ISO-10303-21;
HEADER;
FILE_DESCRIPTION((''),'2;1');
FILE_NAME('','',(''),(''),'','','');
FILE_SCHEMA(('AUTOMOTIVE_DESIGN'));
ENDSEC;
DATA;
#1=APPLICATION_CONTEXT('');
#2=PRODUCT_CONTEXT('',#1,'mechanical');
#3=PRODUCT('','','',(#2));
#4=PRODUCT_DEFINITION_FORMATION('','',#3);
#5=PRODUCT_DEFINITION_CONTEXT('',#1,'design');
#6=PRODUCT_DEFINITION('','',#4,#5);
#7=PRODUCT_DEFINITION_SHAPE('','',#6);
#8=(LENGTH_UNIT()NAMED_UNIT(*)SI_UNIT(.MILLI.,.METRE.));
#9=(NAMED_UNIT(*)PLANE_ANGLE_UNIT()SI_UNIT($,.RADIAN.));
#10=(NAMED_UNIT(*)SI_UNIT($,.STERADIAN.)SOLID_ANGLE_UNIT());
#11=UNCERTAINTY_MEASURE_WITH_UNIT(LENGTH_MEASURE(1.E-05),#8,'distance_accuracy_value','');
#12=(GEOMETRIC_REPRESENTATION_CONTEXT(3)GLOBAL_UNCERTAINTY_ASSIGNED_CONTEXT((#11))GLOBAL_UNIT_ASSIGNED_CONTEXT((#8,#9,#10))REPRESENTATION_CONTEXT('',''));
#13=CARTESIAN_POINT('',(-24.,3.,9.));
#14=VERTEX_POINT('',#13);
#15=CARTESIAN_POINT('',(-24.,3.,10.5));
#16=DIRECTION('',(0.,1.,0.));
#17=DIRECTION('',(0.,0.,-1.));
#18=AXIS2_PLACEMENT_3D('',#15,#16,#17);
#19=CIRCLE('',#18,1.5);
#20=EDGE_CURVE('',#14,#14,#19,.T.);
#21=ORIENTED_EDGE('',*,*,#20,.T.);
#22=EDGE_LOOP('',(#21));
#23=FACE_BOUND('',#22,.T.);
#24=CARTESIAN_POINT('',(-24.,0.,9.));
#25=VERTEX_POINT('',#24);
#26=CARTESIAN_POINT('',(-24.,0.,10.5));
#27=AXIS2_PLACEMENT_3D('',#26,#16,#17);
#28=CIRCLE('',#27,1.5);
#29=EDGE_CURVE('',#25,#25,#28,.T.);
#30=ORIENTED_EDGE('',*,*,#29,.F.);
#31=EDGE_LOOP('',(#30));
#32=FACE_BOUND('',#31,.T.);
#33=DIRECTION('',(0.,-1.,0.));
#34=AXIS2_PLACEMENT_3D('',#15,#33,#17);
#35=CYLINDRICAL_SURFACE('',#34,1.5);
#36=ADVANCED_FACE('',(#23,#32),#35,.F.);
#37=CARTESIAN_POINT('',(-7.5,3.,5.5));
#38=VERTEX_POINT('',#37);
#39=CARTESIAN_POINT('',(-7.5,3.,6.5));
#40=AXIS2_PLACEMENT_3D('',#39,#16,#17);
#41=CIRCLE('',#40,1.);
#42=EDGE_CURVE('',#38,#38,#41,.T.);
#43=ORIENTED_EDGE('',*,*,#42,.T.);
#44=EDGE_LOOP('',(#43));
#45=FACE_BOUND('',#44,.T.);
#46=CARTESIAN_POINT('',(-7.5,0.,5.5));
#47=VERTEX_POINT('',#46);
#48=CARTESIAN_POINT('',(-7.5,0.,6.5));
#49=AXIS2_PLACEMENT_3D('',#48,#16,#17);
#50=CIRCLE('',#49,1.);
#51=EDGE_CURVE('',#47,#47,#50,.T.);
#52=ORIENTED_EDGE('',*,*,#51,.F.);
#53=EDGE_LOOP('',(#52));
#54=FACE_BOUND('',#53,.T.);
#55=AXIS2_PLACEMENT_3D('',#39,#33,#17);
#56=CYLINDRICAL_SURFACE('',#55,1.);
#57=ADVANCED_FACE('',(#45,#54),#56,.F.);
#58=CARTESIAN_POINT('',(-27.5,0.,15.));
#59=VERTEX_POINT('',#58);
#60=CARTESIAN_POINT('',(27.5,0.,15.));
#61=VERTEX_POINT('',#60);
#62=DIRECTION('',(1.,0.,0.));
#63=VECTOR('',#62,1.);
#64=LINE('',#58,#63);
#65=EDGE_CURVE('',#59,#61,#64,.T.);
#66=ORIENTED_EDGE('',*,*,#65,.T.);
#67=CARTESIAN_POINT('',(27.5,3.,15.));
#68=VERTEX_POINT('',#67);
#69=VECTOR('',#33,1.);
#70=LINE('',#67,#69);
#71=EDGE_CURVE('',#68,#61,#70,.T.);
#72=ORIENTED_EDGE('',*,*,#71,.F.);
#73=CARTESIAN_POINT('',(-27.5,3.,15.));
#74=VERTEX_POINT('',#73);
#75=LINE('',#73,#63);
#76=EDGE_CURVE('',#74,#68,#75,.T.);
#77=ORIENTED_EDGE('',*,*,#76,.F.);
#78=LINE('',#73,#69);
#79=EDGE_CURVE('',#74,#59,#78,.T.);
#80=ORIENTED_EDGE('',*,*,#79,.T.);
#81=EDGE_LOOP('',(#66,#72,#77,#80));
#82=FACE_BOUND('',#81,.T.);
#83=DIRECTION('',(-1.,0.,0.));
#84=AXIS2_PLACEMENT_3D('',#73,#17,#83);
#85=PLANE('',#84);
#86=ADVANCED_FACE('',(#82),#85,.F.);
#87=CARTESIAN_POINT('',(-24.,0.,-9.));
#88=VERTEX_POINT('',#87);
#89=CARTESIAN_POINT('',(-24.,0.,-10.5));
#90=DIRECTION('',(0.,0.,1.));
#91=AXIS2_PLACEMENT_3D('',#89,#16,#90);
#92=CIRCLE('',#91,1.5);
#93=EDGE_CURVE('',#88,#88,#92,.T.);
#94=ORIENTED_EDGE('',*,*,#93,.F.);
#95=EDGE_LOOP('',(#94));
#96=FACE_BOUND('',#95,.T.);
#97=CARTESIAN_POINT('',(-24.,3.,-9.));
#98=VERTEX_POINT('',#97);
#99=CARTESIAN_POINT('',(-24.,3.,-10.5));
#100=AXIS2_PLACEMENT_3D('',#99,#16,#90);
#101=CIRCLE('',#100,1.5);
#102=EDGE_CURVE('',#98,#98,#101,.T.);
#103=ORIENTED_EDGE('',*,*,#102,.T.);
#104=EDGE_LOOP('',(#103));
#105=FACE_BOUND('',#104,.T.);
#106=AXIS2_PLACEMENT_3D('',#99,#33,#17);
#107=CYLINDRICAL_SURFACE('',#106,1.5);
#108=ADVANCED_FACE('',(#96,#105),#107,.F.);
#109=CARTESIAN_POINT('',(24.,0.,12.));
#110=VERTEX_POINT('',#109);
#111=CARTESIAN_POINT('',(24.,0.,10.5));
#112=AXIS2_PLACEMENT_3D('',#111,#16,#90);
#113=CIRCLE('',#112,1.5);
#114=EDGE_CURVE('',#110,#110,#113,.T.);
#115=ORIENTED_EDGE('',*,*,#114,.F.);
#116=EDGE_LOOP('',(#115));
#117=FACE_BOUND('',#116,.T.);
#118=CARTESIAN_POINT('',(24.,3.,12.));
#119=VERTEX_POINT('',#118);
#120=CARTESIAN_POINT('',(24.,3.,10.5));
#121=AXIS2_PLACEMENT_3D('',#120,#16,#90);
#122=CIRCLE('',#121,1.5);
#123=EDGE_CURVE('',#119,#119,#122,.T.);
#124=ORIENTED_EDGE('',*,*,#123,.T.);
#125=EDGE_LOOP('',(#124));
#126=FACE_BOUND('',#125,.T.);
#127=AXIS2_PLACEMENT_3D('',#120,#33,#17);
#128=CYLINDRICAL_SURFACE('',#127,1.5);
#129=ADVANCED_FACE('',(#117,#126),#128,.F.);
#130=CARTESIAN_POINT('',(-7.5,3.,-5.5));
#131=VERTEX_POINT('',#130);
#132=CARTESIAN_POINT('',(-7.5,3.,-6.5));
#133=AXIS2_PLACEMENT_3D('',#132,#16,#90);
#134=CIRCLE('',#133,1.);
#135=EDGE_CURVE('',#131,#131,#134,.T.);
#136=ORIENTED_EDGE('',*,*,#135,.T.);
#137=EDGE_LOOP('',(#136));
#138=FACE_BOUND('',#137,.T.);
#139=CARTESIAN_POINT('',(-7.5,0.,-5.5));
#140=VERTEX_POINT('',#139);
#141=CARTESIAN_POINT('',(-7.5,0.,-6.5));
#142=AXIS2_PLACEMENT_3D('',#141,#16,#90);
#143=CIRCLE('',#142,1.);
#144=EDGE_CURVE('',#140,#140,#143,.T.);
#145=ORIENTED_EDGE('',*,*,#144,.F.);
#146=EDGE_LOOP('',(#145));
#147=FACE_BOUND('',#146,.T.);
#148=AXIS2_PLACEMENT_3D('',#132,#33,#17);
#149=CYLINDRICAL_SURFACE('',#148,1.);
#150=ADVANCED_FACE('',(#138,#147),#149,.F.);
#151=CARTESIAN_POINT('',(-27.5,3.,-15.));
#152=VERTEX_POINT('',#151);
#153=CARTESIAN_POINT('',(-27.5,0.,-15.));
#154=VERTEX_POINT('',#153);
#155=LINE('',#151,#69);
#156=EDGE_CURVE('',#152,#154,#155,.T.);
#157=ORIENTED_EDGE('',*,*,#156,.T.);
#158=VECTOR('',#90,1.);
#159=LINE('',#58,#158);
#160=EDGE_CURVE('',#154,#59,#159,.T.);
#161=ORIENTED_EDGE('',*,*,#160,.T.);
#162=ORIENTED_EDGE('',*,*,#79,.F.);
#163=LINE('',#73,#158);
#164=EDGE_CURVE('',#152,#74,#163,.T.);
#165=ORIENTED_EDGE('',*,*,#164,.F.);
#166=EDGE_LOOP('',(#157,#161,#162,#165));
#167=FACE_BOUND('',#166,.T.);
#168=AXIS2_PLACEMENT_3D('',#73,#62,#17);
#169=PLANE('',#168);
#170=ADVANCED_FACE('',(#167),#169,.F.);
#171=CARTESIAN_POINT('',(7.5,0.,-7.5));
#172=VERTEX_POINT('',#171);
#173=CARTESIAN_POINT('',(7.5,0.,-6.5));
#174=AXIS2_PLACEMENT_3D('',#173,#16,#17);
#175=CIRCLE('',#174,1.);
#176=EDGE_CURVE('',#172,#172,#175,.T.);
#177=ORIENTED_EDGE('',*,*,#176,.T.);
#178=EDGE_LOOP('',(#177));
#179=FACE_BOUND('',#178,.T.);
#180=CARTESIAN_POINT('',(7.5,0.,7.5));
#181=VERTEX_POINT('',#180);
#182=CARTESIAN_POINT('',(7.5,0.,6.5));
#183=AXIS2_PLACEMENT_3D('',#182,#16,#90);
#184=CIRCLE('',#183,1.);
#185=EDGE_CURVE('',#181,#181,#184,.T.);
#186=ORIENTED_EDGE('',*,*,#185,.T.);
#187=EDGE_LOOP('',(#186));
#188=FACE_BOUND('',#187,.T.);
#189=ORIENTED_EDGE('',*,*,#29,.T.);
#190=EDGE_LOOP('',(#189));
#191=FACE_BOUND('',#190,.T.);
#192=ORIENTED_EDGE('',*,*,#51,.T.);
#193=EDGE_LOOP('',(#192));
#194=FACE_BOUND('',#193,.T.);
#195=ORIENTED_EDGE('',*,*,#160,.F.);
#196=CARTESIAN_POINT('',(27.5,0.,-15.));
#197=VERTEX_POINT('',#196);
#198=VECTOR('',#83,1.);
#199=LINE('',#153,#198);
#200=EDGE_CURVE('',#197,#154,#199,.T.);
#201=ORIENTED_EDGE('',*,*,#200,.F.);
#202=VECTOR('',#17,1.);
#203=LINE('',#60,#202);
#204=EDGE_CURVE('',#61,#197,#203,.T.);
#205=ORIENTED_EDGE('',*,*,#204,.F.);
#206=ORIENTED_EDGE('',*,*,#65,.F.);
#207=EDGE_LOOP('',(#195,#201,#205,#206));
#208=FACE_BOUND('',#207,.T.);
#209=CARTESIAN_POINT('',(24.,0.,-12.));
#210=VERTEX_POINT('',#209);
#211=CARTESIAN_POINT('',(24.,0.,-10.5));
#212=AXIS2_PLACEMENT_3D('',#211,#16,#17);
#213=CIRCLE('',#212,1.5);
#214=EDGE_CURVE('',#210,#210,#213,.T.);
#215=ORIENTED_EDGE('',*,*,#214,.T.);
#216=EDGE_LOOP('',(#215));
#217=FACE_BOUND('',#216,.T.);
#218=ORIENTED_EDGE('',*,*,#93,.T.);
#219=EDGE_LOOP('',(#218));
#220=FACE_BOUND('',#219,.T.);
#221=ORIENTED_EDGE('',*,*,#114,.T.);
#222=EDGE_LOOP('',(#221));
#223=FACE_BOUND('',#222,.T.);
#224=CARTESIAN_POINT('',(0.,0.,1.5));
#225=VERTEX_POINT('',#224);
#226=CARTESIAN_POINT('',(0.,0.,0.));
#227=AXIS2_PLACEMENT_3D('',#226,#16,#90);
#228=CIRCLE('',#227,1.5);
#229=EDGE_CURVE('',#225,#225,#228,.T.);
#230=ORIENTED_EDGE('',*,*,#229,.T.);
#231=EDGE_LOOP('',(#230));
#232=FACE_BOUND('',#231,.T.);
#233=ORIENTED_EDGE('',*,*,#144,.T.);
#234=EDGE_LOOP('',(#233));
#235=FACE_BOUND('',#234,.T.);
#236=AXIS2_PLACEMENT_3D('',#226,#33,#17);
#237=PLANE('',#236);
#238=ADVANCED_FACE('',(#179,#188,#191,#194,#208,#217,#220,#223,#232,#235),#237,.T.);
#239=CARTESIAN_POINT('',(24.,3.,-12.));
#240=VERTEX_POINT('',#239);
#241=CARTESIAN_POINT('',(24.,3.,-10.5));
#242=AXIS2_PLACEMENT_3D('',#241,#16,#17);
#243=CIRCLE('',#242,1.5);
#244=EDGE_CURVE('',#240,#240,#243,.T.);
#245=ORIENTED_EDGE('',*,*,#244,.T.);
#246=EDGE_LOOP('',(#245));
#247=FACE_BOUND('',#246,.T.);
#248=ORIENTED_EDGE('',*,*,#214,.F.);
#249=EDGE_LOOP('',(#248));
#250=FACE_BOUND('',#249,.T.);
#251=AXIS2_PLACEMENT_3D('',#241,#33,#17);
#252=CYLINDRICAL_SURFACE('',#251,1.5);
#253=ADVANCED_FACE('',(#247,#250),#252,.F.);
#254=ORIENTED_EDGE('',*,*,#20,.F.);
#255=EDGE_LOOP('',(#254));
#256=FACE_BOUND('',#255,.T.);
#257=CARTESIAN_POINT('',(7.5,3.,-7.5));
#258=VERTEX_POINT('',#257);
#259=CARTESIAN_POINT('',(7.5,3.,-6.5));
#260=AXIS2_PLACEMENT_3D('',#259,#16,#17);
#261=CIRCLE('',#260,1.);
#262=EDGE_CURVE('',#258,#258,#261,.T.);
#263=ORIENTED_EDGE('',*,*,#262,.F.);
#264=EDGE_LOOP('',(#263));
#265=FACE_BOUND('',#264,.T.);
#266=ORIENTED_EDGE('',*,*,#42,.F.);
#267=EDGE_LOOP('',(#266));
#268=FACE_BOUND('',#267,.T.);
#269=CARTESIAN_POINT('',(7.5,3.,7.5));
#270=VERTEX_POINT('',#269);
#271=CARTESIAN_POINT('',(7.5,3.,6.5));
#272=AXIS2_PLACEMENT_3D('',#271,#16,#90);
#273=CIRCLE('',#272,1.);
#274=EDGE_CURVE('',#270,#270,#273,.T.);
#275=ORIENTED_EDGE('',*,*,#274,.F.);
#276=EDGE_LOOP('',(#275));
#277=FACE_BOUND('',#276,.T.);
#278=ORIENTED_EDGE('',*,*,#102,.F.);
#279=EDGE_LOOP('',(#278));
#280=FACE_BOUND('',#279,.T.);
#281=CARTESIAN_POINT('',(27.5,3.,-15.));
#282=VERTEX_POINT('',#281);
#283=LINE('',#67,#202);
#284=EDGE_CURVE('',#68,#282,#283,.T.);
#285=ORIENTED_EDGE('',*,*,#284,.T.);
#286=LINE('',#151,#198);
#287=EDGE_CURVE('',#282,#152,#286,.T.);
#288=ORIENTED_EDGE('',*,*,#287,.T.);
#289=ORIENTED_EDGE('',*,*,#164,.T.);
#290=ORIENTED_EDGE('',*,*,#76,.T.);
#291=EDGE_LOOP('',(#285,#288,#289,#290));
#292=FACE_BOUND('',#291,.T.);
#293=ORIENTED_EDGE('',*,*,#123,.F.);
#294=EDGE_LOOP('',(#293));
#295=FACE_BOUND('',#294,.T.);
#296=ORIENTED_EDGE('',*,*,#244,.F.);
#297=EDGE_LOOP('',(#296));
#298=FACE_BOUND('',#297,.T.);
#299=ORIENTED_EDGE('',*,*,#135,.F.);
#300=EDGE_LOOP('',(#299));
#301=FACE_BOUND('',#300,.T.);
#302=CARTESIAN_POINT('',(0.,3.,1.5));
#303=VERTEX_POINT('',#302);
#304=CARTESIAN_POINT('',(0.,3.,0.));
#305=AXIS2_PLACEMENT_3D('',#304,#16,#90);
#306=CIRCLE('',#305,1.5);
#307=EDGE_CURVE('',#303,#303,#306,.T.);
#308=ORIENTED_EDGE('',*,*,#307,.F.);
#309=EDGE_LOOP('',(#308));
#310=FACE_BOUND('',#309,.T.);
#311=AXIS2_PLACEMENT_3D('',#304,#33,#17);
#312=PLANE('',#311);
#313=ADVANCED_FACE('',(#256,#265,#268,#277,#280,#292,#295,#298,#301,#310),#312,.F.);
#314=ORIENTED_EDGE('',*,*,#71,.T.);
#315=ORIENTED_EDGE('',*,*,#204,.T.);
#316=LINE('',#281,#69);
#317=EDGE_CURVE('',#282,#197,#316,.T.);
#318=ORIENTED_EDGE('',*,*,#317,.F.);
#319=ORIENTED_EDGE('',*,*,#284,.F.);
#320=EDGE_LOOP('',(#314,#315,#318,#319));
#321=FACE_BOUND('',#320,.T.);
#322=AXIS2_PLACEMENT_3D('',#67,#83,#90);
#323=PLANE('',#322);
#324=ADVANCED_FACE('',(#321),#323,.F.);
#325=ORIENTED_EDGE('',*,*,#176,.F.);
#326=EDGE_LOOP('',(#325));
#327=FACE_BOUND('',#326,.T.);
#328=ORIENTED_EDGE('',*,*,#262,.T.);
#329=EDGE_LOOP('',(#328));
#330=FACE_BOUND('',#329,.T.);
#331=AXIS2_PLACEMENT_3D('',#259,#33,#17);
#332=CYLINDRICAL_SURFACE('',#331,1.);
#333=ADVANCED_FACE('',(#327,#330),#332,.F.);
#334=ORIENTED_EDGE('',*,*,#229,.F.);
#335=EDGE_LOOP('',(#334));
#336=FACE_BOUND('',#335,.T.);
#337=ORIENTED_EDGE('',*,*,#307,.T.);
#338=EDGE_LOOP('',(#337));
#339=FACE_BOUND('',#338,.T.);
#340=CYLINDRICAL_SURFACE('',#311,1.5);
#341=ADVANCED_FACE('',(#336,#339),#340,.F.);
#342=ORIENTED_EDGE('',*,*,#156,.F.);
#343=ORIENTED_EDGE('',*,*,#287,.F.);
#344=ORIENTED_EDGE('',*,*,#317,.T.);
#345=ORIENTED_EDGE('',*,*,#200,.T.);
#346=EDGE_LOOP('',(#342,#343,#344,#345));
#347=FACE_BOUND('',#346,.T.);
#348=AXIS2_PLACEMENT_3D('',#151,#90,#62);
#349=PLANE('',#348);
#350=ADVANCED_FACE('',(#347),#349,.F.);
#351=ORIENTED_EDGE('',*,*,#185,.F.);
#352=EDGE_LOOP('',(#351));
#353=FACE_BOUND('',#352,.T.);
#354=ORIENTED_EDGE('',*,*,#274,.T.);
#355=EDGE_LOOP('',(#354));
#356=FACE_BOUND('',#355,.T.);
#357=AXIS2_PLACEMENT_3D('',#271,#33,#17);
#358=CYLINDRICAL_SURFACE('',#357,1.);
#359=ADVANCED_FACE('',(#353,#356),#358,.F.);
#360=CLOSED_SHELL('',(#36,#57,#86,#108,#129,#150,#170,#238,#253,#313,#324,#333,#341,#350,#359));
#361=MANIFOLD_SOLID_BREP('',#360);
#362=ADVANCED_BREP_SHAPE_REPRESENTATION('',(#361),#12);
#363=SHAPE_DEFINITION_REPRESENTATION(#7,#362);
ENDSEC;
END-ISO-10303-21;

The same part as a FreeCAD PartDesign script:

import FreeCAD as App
import Part
import Sketcher
from FreeCAD import Vector
Q = App.Units.Quantity


def add_polygon(sketch, points):
    """Adds a closed chain of lines whose ends are joined by coincident constraints."""
    first, n = sketch.GeometryCount, len(points)
    for a, b in zip(points, points[1:] + points[:1]):
        sketch.addGeometry(Part.LineSegment(App.Vector(*a, 0), App.Vector(*b, 0)), False)
    for i in range(n):
        sketch.addConstraint(Sketcher.Constraint("Coincident", first + i, 2, first + (i + 1) % n, 1))

doc = App.newDocument("Part")
params = doc.addObject("Spreadsheet::Sheet", "Params")
for row, (alias, value) in enumerate([
    ("sketch1_diameter", "3 mm"),
    ("sketch1_diameter2", "2 mm"),
    ("sketch1_width", "55 mm"),
    ("sketch1_height", "30 mm"),
    ("pad1_length", "3 mm"),
], start=1):
    params.set(f"A{row}", alias)
    params.set(f"B{row}", "=" + value)
    params.setAlias(f"B{row}", alias)

body = doc.addObject("PartDesign::Body", "Body")

sketch1 = doc.addObject("Sketcher::SketchObject", "Sketch")
body.addObject(sketch1)
sketch1.AttachmentSupport = (doc.XZ_Plane, [""])
sketch1.MapMode = "FlatFace"
add_polygon(sketch1, [(-27.5, -15), (-27.5, 15), (27.5, 15), (27.5, -15)])
sketch1.addGeometry(Part.Circle(Vector(-24, 10.5, 0), Vector(0, 0, 1), 1.5), False)
sketch1.addGeometry(Part.Circle(Vector(-7.5, 6.5, 0), Vector(0, 0, 1), 1), False)
sketch1.addGeometry(Part.Circle(Vector(7.5, 6.5, 0), Vector(0, 0, 1), 1), False)
sketch1.addGeometry(Part.Circle(Vector(24, 10.5, 0), Vector(0, 0, 1), 1.5), False)
sketch1.addGeometry(Part.Circle(Vector(-24, -10.5, 0), Vector(0, 0, 1), 1.5), False)
sketch1.addGeometry(Part.Circle(Vector(-7.5, -6.5, 0), Vector(0, 0, 1), 1), False)
sketch1.addGeometry(Part.Circle(Vector(0, 0, 0), Vector(0, 0, 1), 1.5), False)
sketch1.addGeometry(Part.Circle(Vector(7.5, -6.5, 0), Vector(0, 0, 1), 1), False)
sketch1.addGeometry(Part.Circle(Vector(24, -10.5, 0), Vector(0, 0, 1), 1.5), False)
sketch1.addConstraint([
    Sketcher.Constraint("Vertical", 0),
    Sketcher.Constraint("Horizontal", 1),
    Sketcher.Constraint("Vertical", 2),
    Sketcher.Constraint("Horizontal", 3),
    Sketcher.Constraint("Coincident", 10, 3, -1, 1),
    Sketcher.Constraint("Equal", 5, 6),
    Sketcher.Constraint("Equal", 4, 7),
    Sketcher.Constraint("Equal", 7, 8),
    Sketcher.Constraint("Equal", 6, 9),
    Sketcher.Constraint("Equal", 8, 10),
    Sketcher.Constraint("Equal", 9, 11),
    Sketcher.Constraint("Equal", 10, 12),
    Sketcher.Constraint("Symmetric", 7, 3, 8, 3, -1, 1),
    Sketcher.Constraint("Symmetric", 6, 3, 9, 3, -1, 1),
    Sketcher.Constraint("Symmetric", 5, 3, 11, 3, -1, 1),
    Sketcher.Constraint("Symmetric", 4, 3, 12, 3, -1, 1),
    Sketcher.Constraint("Symmetric", 0, 2, 2, 2, -1, 1),
    Sketcher.Constraint("Symmetric", 5, 3, 6, 3, -2),
    Sketcher.Constraint("Symmetric", 4, 3, 7, 3, -2),
    Sketcher.Constraint("Diameter", 4, Q("3 mm")),
    Sketcher.Constraint("Diameter", 5, Q("2 mm")),
    Sketcher.Constraint("DistanceX", 1, 1, 1, 2, Q("55 mm")),
    Sketcher.Constraint("DistanceY", 0, 1, 0, 2, Q("30 mm")),
    Sketcher.Constraint("DistanceX", 4, 3, -1, 1, Q("24 mm")),
    Sketcher.Constraint("DistanceY", 5, 3, 4, 3, Q("4 mm")),
    Sketcher.Constraint("DistanceX", 5, 3, 6, 3, Q("15 mm")),
    Sketcher.Constraint("DistanceY", 8, 3, 4, 3, Q("21 mm")),
])
sketch1.setExpression("Constraints[23]", "Params.sketch1_diameter")
sketch1.setExpression("Constraints[24]", "Params.sketch1_diameter2")
sketch1.setExpression("Constraints[25]", "Params.sketch1_width")
sketch1.setExpression("Constraints[26]", "Params.sketch1_height")
pad1 = doc.addObject("PartDesign::Pad", "Pad")
body.addObject(pad1)
pad1.Profile = sketch1
pad1.setExpression("Length", "Params.pad1_length")
pad1.Reversed = True

doc.recompute()
